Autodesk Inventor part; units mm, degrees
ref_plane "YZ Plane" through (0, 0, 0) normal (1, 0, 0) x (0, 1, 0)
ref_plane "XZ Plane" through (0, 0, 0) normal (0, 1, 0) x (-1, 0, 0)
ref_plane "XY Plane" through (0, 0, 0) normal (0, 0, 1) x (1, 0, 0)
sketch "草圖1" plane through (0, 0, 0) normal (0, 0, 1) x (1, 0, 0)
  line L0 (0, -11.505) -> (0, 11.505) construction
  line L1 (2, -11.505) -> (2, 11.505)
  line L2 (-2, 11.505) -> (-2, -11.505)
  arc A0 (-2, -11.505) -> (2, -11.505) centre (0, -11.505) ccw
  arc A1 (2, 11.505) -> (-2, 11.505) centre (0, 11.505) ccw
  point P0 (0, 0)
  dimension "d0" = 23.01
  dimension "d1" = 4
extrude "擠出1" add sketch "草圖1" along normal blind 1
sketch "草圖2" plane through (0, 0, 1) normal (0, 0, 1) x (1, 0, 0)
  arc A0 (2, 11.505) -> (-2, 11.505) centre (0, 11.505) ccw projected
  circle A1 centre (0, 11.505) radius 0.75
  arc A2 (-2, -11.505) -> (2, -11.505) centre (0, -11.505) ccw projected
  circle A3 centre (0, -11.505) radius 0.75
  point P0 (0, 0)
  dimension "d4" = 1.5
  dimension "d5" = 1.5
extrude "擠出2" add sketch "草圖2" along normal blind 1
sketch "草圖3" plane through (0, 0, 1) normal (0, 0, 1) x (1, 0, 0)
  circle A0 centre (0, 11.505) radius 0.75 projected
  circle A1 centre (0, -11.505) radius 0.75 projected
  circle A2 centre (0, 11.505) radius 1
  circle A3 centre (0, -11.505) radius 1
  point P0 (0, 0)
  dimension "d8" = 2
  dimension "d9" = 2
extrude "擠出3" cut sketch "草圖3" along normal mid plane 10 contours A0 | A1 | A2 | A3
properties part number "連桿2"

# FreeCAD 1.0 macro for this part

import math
import FreeCAD as App
import Part
import Sketcher
from FreeCAD import Vector

doc = App.newDocument("Part")
body = doc.addObject("PartDesign::Body", "Body")

# Sketch on XY plane
sketch1 = body.newObject("Sketcher::SketchObject", "Sketch")
sketch1.AttachmentSupport = (doc.getObject("XY_Plane"), [""])
sketch1.MapMode = "FlatFace"
sketch1.addGeometry(Part.ArcOfCircle(Part.Circle(Vector(0, -11.5, 0), Vector(0, 0, 1), 2), math.radians(180), math.radians(360)), False)
sketch1.addGeometry(Part.LineSegment(Vector(2, -11.5, 0), Vector(2, 11.5, 0)), False)
sketch1.addGeometry(Part.ArcOfCircle(Part.Circle(Vector(0, 11.5, 0), Vector(0, 0, 1), 2), math.radians(0), math.radians(180)), False)
sketch1.addGeometry(Part.LineSegment(Vector(-2, 11.5, 0), Vector(-2, -11.5, 0)), False)
sketch1.addConstraint(Sketcher.Constraint("Tangent", 0, 2, 1, 1))
sketch1.addConstraint(Sketcher.Constraint("Tangent", 1, 2, 2, 1))
sketch1.addConstraint(Sketcher.Constraint("Tangent", 2, 2, 3, 1))
sketch1.addConstraint(Sketcher.Constraint("Tangent", 3, 2, 0, 1))
sketch1.addConstraint(Sketcher.Constraint("Vertical", 1))
sketch1.addConstraint(Sketcher.Constraint("Vertical", 3))
sketch1.addConstraint(Sketcher.Constraint("Symmetric", 0, 3, 2, 3, -1, 1))
sketch1.addConstraint(Sketcher.Constraint("Radius", 0, 2.0))
sketch1.addConstraint(Sketcher.Constraint("DistanceY", 1, 1, 1, 2, 23.01))
pad1 = body.newObject("PartDesign::Pad", "Pad")
pad1.Profile = sketch1
pad1.Length = 1

# Sketch on XY plane
sketch2 = body.newObject("Sketcher::SketchObject", "Sketch001")
sketch2.AttachmentSupport = (doc.getObject("XY_Plane"), [""])
sketch2.MapMode = "FlatFace"
sketch2.AttachmentOffset = App.Placement(Vector(0, 0, 1), App.Rotation())
sketch2.addGeometry(Part.Circle(Vector(0, 11.5, 0), Vector(0, 0, 1), 0.8), False)
sketch2.addGeometry(Part.Circle(Vector(0, -11.5, 0), Vector(0, 0, 1), 0.8), False)
sketch2.addConstraint(Sketcher.Constraint("Equal", 0, 1))
sketch2.addConstraint(Sketcher.Constraint("Symmetric", 0, 3, 1, 3, -1, 1))
sketch2.addConstraint(Sketcher.Constraint("PointOnObject", 0, 3, -2))
sketch2.addConstraint(Sketcher.Constraint("Diameter", 0, 1.5))
sketch2.addConstraint(Sketcher.Constraint("DistanceY", 1, 3, 0, 3, 23.01))
pad2 = body.newObject("PartDesign::Pad", "Pad001")
pad2.Profile = sketch2
pad2.Length = 1

# Sketch on XY plane
sketch3 = body.newObject("Sketcher::SketchObject", "Sketch002")
sketch3.AttachmentSupport = (doc.getObject("XY_Plane"), [""])
sketch3.MapMode = "FlatFace"
sketch3.AttachmentOffset = App.Placement(Vector(0, 0, 1), App.Rotation())
sketch3.addGeometry(Part.Circle(Vector(0, 11.5, 0), Vector(0, 0, 1), 1), False)
sketch3.addGeometry(Part.Circle(Vector(0, -11.5, 0), Vector(0, 0, 1), 1), False)
sketch3.addConstraint(Sketcher.Constraint("Equal", 0, 1))
sketch3.addConstraint(Sketcher.Constraint("Symmetric", 0, 3, 1, 3, -1, 1))
sketch3.addConstraint(Sketcher.Constraint("PointOnObject", 0, 3, -2))
sketch3.addConstraint(Sketcher.Constraint("Diameter", 0, 2.0))
sketch3.addConstraint(Sketcher.Constraint("DistanceY", 1, 3, 0, 3, 23.01))
pocket1 = body.newObject("PartDesign::Pocket", "Pocket")
pocket1.Profile = sketch3
pocket1.Length = 10
pocket1.Midplane = True

doc.recompute()
